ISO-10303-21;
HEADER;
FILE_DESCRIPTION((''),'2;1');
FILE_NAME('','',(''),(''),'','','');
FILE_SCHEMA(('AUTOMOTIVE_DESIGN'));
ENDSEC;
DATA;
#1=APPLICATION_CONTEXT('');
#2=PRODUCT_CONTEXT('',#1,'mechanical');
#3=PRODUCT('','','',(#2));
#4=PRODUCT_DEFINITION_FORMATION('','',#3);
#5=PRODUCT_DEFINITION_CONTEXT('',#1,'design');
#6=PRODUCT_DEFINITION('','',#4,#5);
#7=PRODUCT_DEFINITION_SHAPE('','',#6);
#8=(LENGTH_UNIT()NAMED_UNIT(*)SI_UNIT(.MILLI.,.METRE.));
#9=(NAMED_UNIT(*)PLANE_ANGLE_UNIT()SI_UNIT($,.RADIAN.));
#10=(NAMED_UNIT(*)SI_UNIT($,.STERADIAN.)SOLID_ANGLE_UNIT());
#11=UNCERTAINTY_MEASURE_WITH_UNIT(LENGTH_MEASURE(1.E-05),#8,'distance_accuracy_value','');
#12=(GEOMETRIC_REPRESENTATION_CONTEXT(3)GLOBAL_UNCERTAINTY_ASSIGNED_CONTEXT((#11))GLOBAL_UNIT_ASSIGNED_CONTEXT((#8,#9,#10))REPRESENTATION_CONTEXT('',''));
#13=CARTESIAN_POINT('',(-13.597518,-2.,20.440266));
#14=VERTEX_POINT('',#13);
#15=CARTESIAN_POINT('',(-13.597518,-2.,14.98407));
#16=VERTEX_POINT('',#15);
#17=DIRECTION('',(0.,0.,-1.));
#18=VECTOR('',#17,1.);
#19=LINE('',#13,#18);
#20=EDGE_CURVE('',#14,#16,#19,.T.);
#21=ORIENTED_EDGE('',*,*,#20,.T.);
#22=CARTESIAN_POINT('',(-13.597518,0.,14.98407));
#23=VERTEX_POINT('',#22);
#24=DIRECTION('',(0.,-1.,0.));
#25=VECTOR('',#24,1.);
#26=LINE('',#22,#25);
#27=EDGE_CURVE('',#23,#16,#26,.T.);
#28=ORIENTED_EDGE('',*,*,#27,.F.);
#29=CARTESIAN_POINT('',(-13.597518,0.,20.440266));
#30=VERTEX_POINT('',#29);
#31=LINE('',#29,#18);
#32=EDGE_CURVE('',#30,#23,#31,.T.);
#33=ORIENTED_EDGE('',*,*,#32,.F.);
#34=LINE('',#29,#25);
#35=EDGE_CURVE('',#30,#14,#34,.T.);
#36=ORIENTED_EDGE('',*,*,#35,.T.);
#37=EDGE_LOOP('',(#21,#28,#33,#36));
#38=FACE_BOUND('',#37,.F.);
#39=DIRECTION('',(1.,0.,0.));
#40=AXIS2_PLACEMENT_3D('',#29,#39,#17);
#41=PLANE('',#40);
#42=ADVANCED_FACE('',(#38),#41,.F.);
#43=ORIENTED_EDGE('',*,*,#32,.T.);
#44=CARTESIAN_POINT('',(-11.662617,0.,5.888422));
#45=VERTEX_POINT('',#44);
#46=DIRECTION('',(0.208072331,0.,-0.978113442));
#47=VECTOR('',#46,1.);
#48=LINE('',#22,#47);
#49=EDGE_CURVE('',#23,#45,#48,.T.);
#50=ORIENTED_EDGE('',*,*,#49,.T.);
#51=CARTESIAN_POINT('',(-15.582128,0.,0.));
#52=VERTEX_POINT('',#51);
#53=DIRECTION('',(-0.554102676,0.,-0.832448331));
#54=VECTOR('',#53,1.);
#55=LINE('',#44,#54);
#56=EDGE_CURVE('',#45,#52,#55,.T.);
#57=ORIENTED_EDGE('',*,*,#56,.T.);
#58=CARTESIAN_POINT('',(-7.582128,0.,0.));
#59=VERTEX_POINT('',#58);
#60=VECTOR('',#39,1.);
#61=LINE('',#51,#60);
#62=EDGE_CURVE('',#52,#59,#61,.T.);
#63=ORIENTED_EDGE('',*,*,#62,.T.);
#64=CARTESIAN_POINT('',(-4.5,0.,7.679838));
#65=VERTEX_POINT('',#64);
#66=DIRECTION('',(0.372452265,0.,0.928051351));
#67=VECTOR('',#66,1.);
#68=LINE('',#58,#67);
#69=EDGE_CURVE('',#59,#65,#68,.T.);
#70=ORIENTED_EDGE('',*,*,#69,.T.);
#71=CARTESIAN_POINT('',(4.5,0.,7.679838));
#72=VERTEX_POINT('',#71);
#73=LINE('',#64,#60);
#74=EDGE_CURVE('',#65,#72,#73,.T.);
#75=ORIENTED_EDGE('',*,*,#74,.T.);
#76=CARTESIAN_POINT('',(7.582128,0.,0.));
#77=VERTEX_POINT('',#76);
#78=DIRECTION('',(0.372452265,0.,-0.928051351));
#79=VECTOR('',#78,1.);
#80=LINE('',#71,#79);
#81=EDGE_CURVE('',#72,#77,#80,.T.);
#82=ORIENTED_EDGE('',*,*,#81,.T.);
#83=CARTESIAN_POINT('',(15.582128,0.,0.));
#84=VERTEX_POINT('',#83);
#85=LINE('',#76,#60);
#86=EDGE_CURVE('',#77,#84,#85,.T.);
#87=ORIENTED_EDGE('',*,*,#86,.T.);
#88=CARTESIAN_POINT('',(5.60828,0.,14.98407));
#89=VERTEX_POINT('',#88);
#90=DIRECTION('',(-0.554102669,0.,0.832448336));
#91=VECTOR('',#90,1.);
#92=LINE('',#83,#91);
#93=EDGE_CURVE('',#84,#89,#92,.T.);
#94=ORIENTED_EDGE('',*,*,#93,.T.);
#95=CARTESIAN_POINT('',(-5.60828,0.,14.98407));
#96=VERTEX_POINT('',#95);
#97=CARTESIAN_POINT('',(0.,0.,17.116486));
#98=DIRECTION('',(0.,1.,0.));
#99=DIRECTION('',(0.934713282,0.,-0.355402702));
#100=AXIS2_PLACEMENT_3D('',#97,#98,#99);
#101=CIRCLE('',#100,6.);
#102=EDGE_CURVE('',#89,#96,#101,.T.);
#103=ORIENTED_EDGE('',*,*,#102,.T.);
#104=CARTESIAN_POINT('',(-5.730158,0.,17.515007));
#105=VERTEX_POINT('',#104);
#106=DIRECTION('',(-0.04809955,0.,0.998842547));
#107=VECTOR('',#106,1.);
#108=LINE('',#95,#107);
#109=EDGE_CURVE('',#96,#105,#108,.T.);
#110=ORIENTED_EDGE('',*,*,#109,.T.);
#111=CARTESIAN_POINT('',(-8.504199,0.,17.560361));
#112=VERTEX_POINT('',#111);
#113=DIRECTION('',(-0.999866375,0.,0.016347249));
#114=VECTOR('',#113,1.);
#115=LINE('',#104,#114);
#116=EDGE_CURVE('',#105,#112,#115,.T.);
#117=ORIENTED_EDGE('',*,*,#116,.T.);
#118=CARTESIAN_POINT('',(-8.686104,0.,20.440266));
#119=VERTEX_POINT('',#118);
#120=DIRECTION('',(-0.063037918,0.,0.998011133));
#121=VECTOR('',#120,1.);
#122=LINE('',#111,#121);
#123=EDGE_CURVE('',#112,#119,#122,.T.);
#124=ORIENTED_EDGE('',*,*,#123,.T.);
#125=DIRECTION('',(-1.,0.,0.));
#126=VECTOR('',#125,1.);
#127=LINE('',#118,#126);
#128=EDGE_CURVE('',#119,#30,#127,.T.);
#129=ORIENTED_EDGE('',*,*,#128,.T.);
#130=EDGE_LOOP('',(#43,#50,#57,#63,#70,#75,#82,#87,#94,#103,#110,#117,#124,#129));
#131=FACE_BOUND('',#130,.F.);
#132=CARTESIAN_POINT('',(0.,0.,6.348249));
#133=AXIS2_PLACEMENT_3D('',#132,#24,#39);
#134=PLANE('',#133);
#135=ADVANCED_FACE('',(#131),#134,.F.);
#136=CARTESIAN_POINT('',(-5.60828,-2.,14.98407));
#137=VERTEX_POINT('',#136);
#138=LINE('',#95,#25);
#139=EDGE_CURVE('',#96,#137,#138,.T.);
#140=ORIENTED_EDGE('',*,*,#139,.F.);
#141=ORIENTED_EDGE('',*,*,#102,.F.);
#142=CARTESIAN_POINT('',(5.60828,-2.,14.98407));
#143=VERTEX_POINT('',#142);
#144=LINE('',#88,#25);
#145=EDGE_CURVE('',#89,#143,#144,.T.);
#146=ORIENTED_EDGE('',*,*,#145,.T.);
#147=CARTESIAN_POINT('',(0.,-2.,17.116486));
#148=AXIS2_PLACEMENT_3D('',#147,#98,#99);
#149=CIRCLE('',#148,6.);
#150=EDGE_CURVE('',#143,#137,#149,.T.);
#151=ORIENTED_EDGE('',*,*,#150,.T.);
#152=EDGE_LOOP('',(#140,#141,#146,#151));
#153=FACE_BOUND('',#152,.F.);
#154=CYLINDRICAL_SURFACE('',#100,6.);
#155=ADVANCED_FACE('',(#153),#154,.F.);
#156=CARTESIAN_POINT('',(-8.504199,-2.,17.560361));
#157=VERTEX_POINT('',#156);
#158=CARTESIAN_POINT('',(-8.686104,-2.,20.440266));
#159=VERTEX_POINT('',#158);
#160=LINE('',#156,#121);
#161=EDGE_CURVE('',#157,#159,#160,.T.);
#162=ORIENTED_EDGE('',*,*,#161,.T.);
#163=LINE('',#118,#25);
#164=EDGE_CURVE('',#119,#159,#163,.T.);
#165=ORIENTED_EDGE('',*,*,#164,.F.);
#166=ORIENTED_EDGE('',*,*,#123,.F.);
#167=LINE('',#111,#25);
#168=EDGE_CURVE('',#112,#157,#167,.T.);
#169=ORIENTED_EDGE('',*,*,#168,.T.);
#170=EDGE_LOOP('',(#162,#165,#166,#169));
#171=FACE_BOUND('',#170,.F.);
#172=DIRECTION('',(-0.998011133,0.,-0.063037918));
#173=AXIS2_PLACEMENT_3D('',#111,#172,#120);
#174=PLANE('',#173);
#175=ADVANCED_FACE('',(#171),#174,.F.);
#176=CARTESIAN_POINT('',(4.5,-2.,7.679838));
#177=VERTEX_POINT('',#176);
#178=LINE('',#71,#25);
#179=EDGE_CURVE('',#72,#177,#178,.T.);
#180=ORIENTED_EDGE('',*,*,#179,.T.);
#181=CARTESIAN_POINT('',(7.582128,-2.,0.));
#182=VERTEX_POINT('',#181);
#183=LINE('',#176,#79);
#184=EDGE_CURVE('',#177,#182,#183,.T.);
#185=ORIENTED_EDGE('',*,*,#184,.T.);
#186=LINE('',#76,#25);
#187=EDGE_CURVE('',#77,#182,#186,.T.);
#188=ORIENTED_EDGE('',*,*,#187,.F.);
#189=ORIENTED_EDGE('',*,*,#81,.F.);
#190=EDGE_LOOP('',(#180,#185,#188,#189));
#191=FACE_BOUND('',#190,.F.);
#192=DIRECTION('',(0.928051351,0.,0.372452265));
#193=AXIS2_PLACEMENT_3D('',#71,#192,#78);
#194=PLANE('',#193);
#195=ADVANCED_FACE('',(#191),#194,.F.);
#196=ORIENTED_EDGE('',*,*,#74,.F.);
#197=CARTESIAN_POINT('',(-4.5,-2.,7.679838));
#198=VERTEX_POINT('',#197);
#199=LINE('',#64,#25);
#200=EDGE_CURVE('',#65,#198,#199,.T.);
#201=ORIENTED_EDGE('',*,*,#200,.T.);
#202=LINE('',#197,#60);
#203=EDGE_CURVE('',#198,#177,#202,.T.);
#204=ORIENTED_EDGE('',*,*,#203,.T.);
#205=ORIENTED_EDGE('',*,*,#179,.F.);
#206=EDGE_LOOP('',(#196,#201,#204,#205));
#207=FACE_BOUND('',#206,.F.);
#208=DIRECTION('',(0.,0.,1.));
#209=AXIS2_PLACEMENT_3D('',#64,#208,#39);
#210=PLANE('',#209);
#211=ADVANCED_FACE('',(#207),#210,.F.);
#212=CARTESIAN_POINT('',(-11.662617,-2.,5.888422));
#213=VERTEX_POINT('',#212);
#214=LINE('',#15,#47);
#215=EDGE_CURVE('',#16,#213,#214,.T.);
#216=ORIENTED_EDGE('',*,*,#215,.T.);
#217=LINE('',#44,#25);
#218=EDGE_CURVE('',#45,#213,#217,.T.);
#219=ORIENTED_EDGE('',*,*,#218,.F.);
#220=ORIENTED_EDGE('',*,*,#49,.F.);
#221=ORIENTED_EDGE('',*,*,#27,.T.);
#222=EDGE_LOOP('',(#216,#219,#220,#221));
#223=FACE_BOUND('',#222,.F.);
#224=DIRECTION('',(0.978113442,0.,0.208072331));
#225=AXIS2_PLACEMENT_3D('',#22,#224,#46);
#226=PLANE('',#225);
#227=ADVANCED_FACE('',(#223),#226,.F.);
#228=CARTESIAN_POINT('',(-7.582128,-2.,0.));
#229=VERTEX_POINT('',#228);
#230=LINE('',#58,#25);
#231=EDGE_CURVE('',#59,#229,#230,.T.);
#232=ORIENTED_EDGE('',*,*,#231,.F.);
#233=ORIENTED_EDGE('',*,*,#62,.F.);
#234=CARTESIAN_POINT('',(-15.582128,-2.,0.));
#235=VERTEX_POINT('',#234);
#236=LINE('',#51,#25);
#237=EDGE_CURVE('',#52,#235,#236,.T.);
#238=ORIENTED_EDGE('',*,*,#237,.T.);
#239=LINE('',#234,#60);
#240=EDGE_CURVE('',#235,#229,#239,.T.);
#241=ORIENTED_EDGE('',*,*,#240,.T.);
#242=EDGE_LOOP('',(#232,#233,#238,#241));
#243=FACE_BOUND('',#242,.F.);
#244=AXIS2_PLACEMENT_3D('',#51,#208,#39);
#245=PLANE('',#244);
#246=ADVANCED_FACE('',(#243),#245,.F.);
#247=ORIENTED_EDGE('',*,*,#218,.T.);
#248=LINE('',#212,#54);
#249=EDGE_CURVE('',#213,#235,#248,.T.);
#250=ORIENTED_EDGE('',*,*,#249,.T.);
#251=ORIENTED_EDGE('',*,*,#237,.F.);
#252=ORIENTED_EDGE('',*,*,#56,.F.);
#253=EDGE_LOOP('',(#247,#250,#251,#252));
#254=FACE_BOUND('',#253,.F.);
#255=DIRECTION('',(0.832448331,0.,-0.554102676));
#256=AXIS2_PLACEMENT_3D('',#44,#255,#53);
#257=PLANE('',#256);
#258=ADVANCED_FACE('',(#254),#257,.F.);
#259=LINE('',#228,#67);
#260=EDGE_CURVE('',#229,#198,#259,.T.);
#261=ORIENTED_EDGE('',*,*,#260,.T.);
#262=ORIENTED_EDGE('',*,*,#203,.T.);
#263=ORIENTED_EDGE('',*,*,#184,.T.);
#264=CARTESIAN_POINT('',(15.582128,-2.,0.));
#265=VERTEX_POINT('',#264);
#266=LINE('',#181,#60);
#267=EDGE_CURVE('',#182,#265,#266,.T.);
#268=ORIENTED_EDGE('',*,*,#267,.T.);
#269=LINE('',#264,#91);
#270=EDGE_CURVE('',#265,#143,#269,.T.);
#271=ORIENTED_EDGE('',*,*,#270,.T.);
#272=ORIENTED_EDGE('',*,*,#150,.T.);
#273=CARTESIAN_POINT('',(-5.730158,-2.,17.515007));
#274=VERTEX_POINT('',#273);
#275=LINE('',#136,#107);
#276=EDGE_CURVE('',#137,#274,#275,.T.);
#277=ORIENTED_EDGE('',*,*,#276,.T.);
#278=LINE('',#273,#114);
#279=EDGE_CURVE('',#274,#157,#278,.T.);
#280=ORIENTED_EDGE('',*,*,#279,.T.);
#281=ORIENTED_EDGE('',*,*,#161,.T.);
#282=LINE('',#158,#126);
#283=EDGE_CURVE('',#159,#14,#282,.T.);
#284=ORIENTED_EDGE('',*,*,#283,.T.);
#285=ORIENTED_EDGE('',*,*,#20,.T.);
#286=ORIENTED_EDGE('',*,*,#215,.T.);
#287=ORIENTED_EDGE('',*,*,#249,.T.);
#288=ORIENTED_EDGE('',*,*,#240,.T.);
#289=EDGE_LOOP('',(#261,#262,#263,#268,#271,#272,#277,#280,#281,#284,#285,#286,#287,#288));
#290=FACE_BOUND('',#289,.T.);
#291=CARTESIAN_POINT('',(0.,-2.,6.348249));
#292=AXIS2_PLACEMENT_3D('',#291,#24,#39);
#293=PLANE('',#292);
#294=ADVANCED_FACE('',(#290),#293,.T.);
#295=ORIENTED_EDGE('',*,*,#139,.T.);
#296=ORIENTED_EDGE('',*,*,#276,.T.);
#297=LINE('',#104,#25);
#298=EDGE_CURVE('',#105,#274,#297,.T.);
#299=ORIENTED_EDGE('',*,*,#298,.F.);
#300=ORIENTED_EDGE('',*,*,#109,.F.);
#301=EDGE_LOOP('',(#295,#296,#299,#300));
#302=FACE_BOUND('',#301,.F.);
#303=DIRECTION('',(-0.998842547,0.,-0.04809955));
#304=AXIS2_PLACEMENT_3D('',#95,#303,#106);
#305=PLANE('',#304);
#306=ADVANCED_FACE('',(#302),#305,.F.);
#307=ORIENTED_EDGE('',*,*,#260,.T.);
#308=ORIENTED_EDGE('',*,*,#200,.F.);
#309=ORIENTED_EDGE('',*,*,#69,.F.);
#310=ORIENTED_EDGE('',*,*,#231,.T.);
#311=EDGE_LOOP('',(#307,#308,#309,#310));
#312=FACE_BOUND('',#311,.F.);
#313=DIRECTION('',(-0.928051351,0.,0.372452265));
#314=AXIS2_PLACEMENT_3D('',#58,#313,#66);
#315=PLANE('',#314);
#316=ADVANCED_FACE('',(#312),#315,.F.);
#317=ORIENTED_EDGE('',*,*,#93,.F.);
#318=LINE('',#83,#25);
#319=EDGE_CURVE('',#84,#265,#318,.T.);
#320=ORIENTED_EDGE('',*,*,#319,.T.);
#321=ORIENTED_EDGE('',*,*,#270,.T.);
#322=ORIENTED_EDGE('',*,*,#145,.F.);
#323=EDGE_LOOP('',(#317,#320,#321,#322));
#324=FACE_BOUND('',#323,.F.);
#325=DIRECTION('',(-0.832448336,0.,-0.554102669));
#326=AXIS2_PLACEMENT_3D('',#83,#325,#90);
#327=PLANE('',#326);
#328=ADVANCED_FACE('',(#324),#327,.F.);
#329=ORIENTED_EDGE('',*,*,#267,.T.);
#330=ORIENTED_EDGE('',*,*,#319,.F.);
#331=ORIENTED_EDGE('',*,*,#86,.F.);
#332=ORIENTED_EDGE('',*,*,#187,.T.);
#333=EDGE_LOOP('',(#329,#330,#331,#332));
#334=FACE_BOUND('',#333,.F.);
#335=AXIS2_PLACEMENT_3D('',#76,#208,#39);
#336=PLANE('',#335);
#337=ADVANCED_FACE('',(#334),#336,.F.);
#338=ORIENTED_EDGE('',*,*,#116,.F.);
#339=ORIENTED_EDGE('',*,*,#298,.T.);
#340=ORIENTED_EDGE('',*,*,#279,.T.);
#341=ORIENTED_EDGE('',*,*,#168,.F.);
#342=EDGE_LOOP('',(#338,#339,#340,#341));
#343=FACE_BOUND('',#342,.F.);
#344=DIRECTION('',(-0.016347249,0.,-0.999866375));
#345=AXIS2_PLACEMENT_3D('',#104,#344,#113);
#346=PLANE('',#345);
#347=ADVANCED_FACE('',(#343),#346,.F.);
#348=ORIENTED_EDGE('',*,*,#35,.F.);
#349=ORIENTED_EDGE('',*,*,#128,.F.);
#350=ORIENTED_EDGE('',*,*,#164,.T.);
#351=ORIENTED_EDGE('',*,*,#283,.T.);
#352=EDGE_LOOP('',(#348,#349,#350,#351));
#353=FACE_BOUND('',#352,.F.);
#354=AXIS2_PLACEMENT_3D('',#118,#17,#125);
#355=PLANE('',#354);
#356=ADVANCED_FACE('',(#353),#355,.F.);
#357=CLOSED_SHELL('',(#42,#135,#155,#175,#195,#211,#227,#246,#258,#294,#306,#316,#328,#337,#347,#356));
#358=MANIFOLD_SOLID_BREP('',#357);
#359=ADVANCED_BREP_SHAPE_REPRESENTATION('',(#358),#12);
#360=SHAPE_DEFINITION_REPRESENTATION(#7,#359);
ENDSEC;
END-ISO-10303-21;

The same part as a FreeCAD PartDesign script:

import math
import FreeCAD as App
import Part
import Sketcher

doc = App.newDocument("Part")
body = doc.addObject("PartDesign::Body", "Body")

# Sketch on XZ plane
sketch1 = body.newObject("Sketcher::SketchObject", "Sketch")
sketch1.AttachmentSupport = (doc.getObject("XZ_Plane"), [""])
sketch1.MapMode = "FlatFace"
sketch1.addGeometry(Part.LineSegment(App.Vector(7.582128, 0, 0), App.Vector(15.582128, 0, 0)), False)
sketch1.addGeometry(Part.LineSegment(App.Vector(15.582128, 0, 0), App.Vector(5.60828, 14.98407, 0)), False)
sketch1.addGeometry(Part.ArcOfCircle(Part.Circle(App.Vector(0, 17.116486, 0), App.Vector(0, 0, 1), 6), math.radians(-159.181873), math.radians(-20.818127)), False)
sketch1.addGeometry(Part.LineSegment(App.Vector(-5.60828, 14.98407, 0), App.Vector(-5.730158, 17.515007, 0)), False)
sketch1.addGeometry(Part.LineSegment(App.Vector(-5.730158, 17.515007, 0), App.Vector(-8.504199, 17.560361, 0)), False)
sketch1.addGeometry(Part.LineSegment(App.Vector(-8.504199, 17.560361, 0), App.Vector(-8.686104, 20.440266, 0)), False)
sketch1.addGeometry(Part.LineSegment(App.Vector(-8.686104, 20.440266, 0), App.Vector(-13.597518, 20.440266, 0)), False)
sketch1.addGeometry(Part.LineSegment(App.Vector(-13.597518, 20.440266, 0), App.Vector(-13.597518, 14.98407, 0)), False)
sketch1.addGeometry(Part.LineSegment(App.Vector(-13.597518, 14.98407, 0), App.Vector(-11.662617, 5.888422, 0)), False)
sketch1.addGeometry(Part.LineSegment(App.Vector(-11.662617, 5.888422, 0), App.Vector(-15.582128, 0, 0)), False)
sketch1.addGeometry(Part.LineSegment(App.Vector(-15.582128, 0, 0), App.Vector(-7.582128, 0, 0)), False)
sketch1.addGeometry(Part.LineSegment(App.Vector(-7.582128, 0, 0), App.Vector(-4.5, 7.679838, 0)), False)
sketch1.addGeometry(Part.LineSegment(App.Vector(-4.5, 7.679838, 0), App.Vector(4.5, 7.679838, 0)), False)
sketch1.addGeometry(Part.LineSegment(App.Vector(4.5, 7.679838, 0), App.Vector(7.582128, 0, 0)), False)
sketch1.addConstraint(Sketcher.Constraint("Coincident", 0, 2, 1, 1))
sketch1.addConstraint(Sketcher.Constraint("Coincident", 1, 2, 2, 2))
sketch1.addConstraint(Sketcher.Constraint("Coincident", 2, 1, 3, 1))
sketch1.addConstraint(Sketcher.Constraint("Coincident", 3, 2, 4, 1))
sketch1.addConstraint(Sketcher.Constraint("Coincident", 4, 2, 5, 1))
sketch1.addConstraint(Sketcher.Constraint("Coincident", 5, 2, 6, 1))
sketch1.addConstraint(Sketcher.Constraint("Coincident", 6, 2, 7, 1))
sketch1.addConstraint(Sketcher.Constraint("Coincident", 7, 2, 8, 1))
sketch1.addConstraint(Sketcher.Constraint("Coincident", 8, 2, 9, 1))
sketch1.addConstraint(Sketcher.Constraint("Coincident", 9, 2, 10, 1))
sketch1.addConstraint(Sketcher.Constraint("Coincident", 10, 2, 11, 1))
sketch1.addConstraint(Sketcher.Constraint("Coincident", 11, 2, 12, 1))
sketch1.addConstraint(Sketcher.Constraint("Coincident", 12, 2, 13, 1))
sketch1.addConstraint(Sketcher.Constraint("Coincident", 13, 2, 0, 1))
sketch1.addConstraint(Sketcher.Constraint("Horizontal", 0))
sketch1.addConstraint(Sketcher.Constraint("Horizontal", 6))
sketch1.addConstraint(Sketcher.Constraint("Vertical", 7))
sketch1.addConstraint(Sketcher.Constraint("Horizontal", 10))
sketch1.addConstraint(Sketcher.Constraint("Horizontal", 12))
sketch1.addConstraint(Sketcher.Constraint("Symmetric", 0, 2, 9, 2, -1, 1))
sketch1.addConstraint(Sketcher.Constraint("Symmetric", 1, 2, 2, 1, -2))
sketch1.addConstraint(Sketcher.Constraint("Symmetric", 10, 2, 13, 2, -2))
sketch1.addConstraint(Sketcher.Constraint("Horizontal", 2, 1, 7, 2))
sketch1.addConstraint(Sketcher.Constraint("Equal", 11, 13))
sketch1.addConstraint(Sketcher.Constraint("Radius", 2, 6.0))
sketch1.addConstraint(Sketcher.Constraint("DistanceX", 0, 1, 0, 2, 8.0))
sketch1.addConstraint(Sketcher.Constraint("DistanceX", 12, 1, 12, 2, 9.0))
sketch1.addConstraint(Sketcher.Constraint("Distance", 1, 18.0))
sketch1.addConstraint(Sketcher.Constraint("DistanceX", 4, 2, -1, 1, 8.504199))
sketch1.addConstraint(Sketcher.Constraint("DistanceX", 7, 2, 8, 2, 1.934901))
sketch1.addConstraint(Sketcher.Constraint("Distance", 3, 2.53387))
sketch1.addConstraint(Sketcher.Constraint("Distance", 4, 2.774412))
sketch1.addConstraint(Sketcher.Constraint("Distance", 9, 7.073619))
sketch1.addConstraint(Sketcher.Constraint("Distance", 11, 8.27523))
sketch1.addConstraint(Sketcher.Constraint("DistanceX", 6, 2, 6, 1, 4.911414))
sketch1.addConstraint(Sketcher.Constraint("DistanceY", 7, 2, 7, 1, 5.456196))
sketch1.addConstraint(Sketcher.Constraint("DistanceX", -1, 1, 0, 2, 15.582128))
sketch1.addConstraint(Sketcher.Constraint("DistanceX", -1, 1, 1, 2, 5.60828))
sketch1.addConstraint(Sketcher.Constraint("DistanceX", 3, 2, -1, 1, 5.730158))
sketch1.addConstraint(Sketcher.Constraint("DistanceX", 6, 2, -1, 1, 13.597518))
pad1 = body.newObject("PartDesign::Pad", "Pad")
pad1.Profile = sketch1
pad1.Length = 2

doc.recompute()
